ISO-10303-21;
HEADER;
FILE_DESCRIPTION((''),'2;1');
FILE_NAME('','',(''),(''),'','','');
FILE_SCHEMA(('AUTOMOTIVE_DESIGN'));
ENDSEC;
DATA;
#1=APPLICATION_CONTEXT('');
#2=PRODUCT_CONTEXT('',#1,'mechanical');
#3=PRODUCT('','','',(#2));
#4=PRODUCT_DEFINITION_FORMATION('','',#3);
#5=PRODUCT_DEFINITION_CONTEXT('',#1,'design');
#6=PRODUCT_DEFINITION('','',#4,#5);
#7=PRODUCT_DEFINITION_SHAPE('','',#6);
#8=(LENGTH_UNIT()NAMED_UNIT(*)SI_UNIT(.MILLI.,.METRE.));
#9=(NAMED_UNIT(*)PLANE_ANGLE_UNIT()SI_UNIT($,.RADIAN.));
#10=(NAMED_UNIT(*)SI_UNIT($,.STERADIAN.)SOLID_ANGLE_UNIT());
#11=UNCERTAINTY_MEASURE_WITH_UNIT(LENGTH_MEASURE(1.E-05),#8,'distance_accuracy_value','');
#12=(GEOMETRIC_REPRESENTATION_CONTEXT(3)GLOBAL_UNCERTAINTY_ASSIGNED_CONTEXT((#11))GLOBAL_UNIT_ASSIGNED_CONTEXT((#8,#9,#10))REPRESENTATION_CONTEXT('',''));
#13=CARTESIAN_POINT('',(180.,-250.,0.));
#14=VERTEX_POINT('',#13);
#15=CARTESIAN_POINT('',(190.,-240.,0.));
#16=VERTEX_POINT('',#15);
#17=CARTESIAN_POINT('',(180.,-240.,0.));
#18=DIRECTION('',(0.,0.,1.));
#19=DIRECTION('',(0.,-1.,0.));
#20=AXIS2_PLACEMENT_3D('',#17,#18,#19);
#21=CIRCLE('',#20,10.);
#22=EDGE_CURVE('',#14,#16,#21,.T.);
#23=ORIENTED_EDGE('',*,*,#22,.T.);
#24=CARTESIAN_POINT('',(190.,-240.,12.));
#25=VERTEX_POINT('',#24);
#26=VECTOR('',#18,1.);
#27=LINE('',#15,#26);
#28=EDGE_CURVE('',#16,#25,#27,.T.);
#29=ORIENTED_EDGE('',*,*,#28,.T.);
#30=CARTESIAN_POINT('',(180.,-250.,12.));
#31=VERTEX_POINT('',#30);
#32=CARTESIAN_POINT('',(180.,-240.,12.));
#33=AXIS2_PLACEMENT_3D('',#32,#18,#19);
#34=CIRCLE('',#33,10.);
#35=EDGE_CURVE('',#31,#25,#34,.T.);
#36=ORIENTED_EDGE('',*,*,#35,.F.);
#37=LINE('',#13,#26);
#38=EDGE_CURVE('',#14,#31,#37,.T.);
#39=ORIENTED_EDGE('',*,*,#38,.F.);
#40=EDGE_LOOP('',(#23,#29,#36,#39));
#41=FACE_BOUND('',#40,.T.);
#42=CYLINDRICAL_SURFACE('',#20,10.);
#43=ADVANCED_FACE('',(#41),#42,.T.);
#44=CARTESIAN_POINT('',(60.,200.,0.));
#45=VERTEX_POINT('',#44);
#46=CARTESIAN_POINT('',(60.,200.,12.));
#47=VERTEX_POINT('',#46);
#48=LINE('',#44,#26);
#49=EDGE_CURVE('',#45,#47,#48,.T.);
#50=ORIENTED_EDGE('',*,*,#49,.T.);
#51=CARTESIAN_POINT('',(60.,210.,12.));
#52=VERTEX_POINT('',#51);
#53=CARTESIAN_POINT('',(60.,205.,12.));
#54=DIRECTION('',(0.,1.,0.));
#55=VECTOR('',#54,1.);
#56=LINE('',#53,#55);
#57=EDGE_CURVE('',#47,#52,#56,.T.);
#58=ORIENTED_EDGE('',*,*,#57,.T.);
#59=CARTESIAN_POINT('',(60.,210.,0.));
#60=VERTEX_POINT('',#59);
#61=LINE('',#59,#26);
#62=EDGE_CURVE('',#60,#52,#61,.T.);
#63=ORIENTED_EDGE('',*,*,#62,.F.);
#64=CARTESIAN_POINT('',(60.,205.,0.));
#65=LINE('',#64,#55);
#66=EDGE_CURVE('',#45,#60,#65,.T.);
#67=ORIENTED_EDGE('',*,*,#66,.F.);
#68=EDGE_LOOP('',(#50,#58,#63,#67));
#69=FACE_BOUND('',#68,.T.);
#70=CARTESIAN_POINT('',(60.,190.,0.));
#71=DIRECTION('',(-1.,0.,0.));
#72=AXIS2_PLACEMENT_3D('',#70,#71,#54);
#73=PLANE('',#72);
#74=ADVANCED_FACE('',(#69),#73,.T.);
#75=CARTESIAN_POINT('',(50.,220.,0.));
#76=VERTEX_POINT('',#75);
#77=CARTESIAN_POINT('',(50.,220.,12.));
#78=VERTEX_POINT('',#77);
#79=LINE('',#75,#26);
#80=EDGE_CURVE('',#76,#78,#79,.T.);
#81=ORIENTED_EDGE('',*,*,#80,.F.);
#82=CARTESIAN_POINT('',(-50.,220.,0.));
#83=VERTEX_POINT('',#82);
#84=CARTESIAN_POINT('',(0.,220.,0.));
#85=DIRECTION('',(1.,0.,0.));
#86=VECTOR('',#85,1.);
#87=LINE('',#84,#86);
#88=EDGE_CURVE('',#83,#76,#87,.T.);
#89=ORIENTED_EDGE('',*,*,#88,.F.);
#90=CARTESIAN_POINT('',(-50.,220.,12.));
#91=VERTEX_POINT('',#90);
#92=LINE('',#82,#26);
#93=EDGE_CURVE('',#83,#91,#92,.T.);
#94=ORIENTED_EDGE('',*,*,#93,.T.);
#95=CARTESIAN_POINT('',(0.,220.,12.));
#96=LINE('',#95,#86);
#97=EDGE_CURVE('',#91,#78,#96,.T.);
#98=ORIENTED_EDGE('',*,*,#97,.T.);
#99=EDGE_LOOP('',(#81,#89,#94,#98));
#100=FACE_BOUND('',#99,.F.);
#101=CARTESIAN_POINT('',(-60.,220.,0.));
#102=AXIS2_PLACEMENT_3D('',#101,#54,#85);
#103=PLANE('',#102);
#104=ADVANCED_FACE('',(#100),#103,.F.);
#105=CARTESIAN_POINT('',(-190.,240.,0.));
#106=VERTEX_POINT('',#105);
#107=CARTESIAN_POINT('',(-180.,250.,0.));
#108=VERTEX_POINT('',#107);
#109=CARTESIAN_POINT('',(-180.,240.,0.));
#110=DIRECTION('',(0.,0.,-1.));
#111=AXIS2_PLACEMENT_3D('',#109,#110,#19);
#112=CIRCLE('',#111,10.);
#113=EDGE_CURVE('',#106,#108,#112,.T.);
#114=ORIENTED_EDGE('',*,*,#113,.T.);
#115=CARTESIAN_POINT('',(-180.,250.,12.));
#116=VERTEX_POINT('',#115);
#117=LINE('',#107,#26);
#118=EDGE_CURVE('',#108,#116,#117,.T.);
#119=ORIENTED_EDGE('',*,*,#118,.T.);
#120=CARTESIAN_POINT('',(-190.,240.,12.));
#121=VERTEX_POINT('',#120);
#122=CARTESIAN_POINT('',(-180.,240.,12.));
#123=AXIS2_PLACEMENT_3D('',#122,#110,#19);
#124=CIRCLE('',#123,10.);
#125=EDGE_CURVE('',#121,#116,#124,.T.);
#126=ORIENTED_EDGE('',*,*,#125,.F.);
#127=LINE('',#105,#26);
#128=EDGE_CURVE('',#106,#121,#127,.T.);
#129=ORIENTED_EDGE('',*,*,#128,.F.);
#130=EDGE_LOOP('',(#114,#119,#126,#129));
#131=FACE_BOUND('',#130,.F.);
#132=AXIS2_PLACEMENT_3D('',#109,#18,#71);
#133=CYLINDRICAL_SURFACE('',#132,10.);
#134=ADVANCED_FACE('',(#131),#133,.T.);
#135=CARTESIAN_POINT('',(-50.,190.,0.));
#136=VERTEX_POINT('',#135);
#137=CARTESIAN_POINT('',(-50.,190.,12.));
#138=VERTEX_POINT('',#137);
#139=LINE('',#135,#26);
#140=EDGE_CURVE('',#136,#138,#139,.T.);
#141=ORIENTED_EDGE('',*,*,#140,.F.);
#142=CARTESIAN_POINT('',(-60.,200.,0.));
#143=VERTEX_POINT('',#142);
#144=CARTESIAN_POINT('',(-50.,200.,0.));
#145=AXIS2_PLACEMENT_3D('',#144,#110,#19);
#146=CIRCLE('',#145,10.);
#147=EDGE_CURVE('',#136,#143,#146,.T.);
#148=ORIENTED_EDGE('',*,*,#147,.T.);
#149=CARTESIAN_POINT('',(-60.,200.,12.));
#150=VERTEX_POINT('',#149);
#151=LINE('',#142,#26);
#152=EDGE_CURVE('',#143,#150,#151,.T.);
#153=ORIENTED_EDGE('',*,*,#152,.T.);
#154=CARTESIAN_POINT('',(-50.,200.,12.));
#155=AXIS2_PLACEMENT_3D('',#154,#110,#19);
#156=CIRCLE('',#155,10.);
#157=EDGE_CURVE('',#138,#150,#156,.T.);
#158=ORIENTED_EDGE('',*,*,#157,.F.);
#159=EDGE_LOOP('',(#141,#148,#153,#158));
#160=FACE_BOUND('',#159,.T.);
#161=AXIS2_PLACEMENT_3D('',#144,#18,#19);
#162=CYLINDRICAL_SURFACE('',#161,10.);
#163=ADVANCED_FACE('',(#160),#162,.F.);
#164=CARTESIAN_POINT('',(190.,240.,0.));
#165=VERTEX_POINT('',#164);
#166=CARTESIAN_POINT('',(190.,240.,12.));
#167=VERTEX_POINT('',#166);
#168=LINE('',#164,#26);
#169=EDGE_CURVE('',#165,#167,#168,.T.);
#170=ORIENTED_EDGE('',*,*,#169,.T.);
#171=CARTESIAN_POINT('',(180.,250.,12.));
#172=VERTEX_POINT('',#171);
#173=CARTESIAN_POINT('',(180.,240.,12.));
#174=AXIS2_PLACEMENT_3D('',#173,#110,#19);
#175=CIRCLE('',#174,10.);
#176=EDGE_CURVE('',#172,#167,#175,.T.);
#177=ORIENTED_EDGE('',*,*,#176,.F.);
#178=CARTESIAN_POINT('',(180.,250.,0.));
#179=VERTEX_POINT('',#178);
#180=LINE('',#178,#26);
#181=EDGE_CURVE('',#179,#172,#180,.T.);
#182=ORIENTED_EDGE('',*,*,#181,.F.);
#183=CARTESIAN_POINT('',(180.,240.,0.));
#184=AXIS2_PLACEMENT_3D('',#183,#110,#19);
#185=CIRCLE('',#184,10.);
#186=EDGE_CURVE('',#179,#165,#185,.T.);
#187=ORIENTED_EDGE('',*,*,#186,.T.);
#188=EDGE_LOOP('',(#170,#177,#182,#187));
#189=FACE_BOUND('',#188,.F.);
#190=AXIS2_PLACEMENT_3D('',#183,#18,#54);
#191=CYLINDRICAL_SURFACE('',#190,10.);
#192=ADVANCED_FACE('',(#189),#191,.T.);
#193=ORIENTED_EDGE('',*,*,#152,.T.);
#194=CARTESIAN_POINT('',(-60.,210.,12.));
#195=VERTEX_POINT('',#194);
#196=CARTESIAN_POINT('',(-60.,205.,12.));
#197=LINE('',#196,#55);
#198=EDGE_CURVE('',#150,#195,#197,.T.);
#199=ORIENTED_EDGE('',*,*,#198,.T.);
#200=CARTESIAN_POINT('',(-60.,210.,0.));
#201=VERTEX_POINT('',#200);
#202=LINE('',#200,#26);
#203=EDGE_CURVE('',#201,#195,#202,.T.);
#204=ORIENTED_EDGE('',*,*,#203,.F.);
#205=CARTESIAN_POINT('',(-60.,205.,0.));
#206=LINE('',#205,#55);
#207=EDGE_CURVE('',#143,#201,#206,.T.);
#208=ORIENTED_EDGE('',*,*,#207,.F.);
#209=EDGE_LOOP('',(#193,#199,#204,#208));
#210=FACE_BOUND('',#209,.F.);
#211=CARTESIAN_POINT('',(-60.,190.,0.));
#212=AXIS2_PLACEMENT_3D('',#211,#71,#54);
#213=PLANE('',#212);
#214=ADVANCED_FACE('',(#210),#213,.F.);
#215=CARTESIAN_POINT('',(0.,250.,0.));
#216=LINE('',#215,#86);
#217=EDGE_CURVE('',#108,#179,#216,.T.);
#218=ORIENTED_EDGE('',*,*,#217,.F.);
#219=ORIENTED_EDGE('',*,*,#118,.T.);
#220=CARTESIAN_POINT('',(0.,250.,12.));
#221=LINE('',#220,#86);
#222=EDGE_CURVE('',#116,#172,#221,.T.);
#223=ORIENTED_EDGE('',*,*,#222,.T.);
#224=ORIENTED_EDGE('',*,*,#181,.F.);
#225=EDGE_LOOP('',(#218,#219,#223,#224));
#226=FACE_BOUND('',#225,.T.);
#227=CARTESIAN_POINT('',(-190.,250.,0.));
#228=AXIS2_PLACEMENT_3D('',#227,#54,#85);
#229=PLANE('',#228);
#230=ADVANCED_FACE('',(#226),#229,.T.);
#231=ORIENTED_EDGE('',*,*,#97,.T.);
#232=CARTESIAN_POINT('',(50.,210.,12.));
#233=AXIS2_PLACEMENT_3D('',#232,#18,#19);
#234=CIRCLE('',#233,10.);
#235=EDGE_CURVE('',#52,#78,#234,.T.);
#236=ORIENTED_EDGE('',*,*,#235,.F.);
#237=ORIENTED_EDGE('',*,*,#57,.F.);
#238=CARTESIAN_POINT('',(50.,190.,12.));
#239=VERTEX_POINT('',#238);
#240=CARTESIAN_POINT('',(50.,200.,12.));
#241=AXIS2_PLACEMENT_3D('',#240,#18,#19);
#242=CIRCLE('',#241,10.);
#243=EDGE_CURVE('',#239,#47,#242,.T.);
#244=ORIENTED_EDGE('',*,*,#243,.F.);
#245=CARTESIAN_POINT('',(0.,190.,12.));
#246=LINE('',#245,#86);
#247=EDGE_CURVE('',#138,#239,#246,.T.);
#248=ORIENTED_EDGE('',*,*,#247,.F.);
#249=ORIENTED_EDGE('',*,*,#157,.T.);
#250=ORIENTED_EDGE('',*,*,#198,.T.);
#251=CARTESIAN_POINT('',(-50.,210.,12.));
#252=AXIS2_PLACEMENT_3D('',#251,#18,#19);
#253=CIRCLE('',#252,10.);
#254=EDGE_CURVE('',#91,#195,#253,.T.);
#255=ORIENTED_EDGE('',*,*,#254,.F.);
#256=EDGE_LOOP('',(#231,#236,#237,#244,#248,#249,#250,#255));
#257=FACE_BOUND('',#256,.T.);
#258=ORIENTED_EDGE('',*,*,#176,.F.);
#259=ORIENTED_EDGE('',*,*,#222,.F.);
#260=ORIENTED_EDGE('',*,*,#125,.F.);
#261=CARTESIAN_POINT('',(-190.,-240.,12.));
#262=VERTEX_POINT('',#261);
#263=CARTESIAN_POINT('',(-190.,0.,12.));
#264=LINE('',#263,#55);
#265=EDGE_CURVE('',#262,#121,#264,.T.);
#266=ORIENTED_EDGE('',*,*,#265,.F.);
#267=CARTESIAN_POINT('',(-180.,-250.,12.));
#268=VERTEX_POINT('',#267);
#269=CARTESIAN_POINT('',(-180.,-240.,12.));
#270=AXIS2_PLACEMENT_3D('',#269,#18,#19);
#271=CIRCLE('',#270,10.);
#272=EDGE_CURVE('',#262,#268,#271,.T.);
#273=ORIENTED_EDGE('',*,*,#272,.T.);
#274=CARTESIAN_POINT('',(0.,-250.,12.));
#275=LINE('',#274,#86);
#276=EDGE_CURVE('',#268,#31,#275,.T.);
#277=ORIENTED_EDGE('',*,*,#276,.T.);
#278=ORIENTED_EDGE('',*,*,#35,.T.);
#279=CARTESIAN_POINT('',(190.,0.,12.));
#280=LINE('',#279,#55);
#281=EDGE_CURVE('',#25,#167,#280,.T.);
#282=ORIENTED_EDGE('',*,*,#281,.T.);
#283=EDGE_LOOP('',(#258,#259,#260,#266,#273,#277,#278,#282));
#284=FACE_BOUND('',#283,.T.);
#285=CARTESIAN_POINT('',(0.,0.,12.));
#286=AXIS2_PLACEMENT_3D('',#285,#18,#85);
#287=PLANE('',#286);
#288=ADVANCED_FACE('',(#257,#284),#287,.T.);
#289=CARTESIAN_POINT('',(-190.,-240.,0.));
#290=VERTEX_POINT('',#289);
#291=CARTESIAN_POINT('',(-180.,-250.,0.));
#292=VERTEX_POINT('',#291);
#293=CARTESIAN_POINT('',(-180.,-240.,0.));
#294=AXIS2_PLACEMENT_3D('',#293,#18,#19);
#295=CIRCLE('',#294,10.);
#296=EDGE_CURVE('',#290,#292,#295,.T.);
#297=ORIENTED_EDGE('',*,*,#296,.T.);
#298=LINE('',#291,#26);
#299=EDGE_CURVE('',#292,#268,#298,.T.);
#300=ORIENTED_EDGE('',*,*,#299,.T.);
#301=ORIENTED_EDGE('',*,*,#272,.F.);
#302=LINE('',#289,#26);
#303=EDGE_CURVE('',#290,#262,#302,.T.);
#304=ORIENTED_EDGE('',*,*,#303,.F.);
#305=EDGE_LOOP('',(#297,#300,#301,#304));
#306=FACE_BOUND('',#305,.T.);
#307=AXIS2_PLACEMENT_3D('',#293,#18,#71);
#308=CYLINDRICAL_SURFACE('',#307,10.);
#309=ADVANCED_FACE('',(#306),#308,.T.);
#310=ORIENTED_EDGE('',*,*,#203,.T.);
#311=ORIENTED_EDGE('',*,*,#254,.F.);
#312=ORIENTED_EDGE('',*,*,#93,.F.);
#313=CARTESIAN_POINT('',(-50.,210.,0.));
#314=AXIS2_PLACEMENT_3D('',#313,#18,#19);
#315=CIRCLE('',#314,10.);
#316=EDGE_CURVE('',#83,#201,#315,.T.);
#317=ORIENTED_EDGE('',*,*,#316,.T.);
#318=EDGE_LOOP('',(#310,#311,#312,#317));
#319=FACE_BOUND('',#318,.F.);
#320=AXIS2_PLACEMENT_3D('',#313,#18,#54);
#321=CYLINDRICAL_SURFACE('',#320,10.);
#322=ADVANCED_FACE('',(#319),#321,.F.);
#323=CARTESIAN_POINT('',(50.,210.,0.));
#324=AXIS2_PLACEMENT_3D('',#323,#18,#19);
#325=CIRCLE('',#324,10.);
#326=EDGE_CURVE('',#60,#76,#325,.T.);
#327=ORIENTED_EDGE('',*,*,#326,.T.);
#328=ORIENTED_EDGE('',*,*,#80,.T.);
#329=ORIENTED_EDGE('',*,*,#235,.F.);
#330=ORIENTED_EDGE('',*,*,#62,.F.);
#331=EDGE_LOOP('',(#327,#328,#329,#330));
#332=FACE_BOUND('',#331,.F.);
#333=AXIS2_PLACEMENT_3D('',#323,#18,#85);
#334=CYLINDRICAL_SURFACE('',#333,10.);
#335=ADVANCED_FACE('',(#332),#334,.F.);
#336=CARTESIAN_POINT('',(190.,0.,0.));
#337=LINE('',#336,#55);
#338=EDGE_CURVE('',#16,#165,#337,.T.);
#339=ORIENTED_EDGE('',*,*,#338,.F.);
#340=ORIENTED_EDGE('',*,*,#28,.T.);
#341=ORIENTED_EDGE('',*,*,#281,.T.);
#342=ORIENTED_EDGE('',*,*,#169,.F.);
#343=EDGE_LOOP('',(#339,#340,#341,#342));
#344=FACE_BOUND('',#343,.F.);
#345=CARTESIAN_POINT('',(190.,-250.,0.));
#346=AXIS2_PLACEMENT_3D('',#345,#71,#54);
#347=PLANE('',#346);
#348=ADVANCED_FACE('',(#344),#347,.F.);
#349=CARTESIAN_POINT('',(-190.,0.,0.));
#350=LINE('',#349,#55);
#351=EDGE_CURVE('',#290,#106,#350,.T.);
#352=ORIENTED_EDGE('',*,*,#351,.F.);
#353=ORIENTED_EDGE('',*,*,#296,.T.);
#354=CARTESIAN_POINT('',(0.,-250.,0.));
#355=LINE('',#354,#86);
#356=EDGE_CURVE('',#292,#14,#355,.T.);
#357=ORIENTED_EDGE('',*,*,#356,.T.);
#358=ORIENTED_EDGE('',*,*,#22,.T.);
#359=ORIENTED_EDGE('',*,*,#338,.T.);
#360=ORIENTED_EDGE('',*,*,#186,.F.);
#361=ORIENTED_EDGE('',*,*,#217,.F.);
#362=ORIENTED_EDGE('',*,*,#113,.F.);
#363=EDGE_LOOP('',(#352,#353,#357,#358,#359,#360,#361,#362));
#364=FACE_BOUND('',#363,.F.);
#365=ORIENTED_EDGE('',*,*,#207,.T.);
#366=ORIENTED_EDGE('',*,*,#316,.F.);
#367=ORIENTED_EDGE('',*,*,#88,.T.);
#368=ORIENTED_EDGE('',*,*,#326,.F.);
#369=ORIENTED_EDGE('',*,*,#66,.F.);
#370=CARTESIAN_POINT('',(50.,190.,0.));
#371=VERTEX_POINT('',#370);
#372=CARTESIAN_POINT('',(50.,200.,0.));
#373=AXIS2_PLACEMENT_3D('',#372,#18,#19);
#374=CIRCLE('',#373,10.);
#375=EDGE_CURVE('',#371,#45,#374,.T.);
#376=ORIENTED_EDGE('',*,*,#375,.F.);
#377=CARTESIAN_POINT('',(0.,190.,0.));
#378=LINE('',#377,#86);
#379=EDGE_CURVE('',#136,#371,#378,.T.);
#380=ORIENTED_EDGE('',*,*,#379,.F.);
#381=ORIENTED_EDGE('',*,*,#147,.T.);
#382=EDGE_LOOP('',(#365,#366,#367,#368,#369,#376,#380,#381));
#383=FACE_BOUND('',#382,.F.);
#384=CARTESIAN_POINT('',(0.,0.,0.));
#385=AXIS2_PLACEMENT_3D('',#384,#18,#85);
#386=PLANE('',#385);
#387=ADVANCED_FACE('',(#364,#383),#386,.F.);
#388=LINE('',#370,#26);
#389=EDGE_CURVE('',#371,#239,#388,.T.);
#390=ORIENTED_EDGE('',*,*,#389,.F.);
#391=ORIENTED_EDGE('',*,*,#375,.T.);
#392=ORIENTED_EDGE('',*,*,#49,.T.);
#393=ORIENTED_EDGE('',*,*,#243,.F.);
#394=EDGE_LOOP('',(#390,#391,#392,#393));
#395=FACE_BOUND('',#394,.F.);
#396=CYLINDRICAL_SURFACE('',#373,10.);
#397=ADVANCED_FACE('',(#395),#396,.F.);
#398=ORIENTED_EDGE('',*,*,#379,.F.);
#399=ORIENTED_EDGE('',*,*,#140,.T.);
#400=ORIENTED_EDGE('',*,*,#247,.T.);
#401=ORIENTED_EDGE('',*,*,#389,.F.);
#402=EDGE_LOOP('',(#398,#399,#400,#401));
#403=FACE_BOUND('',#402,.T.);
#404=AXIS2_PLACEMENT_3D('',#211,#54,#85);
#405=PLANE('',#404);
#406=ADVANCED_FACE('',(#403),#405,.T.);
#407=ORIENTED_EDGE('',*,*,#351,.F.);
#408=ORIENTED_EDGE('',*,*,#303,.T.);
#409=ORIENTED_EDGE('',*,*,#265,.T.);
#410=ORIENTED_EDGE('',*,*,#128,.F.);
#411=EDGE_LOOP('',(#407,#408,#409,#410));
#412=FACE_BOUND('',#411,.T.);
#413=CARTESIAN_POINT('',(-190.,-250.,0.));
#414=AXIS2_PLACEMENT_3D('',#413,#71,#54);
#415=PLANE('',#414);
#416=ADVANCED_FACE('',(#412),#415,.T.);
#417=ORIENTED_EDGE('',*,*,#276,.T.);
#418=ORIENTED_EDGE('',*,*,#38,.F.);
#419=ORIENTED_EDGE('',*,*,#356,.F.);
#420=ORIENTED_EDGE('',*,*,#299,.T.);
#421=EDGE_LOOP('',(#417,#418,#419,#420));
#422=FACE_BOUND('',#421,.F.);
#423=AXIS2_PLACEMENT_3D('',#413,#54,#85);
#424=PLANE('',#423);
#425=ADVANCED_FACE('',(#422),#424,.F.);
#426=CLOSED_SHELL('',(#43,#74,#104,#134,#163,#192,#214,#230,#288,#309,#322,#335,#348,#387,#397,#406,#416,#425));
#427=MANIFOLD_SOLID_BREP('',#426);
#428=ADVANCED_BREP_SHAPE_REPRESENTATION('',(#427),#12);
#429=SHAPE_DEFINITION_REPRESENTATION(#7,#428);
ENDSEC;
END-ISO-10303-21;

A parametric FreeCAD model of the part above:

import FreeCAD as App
import Part
import Sketcher
from FreeCAD import Vector


def edges_at(feature, points):
    """Names of the edges that pass closest to the given points."""
    edges = feature.Shape.Edges
    near = lambda p: min(range(len(edges)), key=lambda i: edges[i].distToShape(Part.Vertex(*p))[0])
    return sorted({f"Edge{near(p) + 1}" for p in points})

doc = App.newDocument("Part")
params = doc.addObject("Spreadsheet::Sheet", "Params")
for row, (alias, value) in enumerate([
    ("sketch1_width", "380 mm"),
    ("sketch1_width2", "120 mm"),
    ("sketch1_height", "500 mm"),
    ("sketch1_height2", "30 mm"),
    ("pad1_length", "12 mm"),
    ("fillet_radius", "10 mm"),
], start=1):
    params.set(f"A{row}", alias)
    params.set(f"B{row}", "=" + value)
    params.setAlias(f"B{row}", alias)

body = doc.addObject("PartDesign::Body", "Body")

# Sketch on XY plane
sketch1 = doc.addObject("Sketcher::SketchObject", "Sketch")
body.addObject(sketch1)
sketch1.AttachmentSupport = (doc.XY_Plane, [""])
sketch1.MapMode = "FlatFace"
sketch1.addGeometry([
    Part.LineSegment(Vector(-190, 250, 0), Vector(-190, -250, 0)),  # 0
    Part.LineSegment(Vector(-190, -250, 0), Vector(190, -250, 0)),  # 1
    Part.LineSegment(Vector(190, -250, 0), Vector(190, 250, 0)),  # 2
    Part.LineSegment(Vector(190, 250, 0), Vector(-190, 250, 0)),  # 3
    Part.LineSegment(Vector(60, 190, 0), Vector(-60, 190, 0)),  # 4
    Part.LineSegment(Vector(-60, 190, 0), Vector(-60, 220, 0)),  # 5
    Part.LineSegment(Vector(-60, 220, 0), Vector(60, 220, 0)),  # 6
    Part.LineSegment(Vector(60, 220, 0), Vector(60, 190, 0)),  # 7
], False)
sketch1.addConstraint([
    Sketcher.Constraint("Coincident", 0, 2, 1, 1),
    Sketcher.Constraint("Coincident", 1, 2, 2, 1),
    Sketcher.Constraint("Coincident", 2, 2, 3, 1),
    Sketcher.Constraint("Coincident", 3, 2, 0, 1),
    Sketcher.Constraint("Coincident", 4, 2, 5, 1),
    Sketcher.Constraint("Coincident", 5, 2, 6, 1),
    Sketcher.Constraint("Coincident", 6, 2, 7, 1),
    Sketcher.Constraint("Coincident", 7, 2, 4, 1),
    Sketcher.Constraint("Vertical", 0),
    Sketcher.Constraint("Horizontal", 1),
    Sketcher.Constraint("Vertical", 2),
    Sketcher.Constraint("Horizontal", 3),
    Sketcher.Constraint("Horizontal", 4),
    Sketcher.Constraint("Vertical", 5),
    Sketcher.Constraint("Horizontal", 6),
    Sketcher.Constraint("Vertical", 7),
    Sketcher.Constraint("Symmetric", 0, 2, 2, 2, -1, 1),
    Sketcher.Constraint("DistanceX", 1, 1, 1, 2, 380.0),
    Sketcher.Constraint("DistanceX", 4, 2, 4, 1, 120.0),
    Sketcher.Constraint("DistanceY", 0, 2, 0, 1, 500.0),
    Sketcher.Constraint("DistanceY", 5, 1, 5, 2, 30.0),
    Sketcher.Constraint("DistanceX", 4, 2, -1, 1, 60.0),
    Sketcher.Constraint("DistanceY", -1, 1, 4, 2, 190.0),
])
sketch1.setExpression("Constraints[17]", "Params.sketch1_width")
sketch1.setExpression("Constraints[18]", "Params.sketch1_width2")
sketch1.setExpression("Constraints[19]", "Params.sketch1_height")
sketch1.setExpression("Constraints[20]", "Params.sketch1_height2")
pad1 = doc.addObject("PartDesign::Pad", "Pad")
body.addObject(pad1)
pad1.Profile = sketch1
pad1.setExpression("Length", "Params.pad1_length")
doc.recompute()

fillet = doc.addObject("PartDesign::Fillet", "Fillet")
body.addObject(fillet)
fillet.Base = (pad1, edges_at(pad1, [
    (-190, 250, 6),
    (190, 250, 6),
    (60, 190, 6),
    (60, 220, 6),
    (-60, 220, 6),
    (-60, 190, 6),
    (190, -250, 6),
    (-190, -250, 6),
]))
fillet.setExpression("Radius", "Params.fillet_radius")

doc.recompute()
